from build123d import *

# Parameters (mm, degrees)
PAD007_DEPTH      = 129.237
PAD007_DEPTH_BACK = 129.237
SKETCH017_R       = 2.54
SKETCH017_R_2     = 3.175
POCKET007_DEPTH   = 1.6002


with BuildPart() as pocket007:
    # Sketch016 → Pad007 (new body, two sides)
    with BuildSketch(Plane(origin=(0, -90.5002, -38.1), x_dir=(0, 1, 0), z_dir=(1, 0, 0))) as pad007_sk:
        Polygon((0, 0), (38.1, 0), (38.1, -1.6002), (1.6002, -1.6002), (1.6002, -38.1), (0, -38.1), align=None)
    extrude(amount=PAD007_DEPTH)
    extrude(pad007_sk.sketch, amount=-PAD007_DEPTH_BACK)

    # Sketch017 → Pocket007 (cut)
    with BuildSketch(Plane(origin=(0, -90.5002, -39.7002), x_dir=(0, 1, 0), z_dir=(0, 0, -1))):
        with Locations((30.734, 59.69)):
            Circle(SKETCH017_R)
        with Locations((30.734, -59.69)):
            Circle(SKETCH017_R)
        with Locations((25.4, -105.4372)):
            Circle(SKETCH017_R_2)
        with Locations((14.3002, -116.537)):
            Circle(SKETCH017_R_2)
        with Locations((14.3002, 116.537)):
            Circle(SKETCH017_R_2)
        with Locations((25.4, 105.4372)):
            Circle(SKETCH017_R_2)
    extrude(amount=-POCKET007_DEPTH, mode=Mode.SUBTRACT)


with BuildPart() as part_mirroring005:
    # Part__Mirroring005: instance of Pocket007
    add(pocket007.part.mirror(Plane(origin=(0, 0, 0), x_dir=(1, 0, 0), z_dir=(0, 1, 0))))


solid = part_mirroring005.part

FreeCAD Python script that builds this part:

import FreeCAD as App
import Part
import Sketcher
from FreeCAD import Vector
Q = App.Units.Quantity

doc = App.newDocument("Part")
body = doc.addObject("PartDesign::Body", "Body")

# Sketch on YZ plane
sketch1 = doc.addObject("Sketcher::SketchObject", "Sketch")
body.addObject(sketch1)
sketch1.AttachmentSupport = (doc.YZ_Plane, [""])
sketch1.MapMode = "FlatFace"
sketch1.addGeometry(Part.LineSegment(Vector(-52.4002, -38.1, 0), Vector(-90.5002, -38.1, 0)), False)
sketch1.addGeometry(Part.LineSegment(Vector(-90.5002, -38.1, 0), Vector(-90.5002, -76.2, 0)), False)
sketch1.addGeometry(Part.LineSegment(Vector(-90.5002, -76.2, 0), Vector(-88.9, -76.2, 0)), False)
sketch1.addGeometry(Part.LineSegment(Vector(-88.9, -76.2, 0), Vector(-88.9, -39.7002, 0)), False)
sketch1.addGeometry(Part.LineSegment(Vector(-88.9, -39.7002, 0), Vector(-52.4002, -39.7002, 0)), False)
sketch1.addGeometry(Part.LineSegment(Vector(-52.4002, -39.7002, 0), Vector(-52.4002, -38.1, 0)), False)
sketch1.addConstraint(Sketcher.Constraint("Coincident", 0, 2, 1, 1))
sketch1.addConstraint(Sketcher.Constraint("Coincident", 1, 2, 2, 1))
sketch1.addConstraint(Sketcher.Constraint("Coincident", 2, 2, 3, 1))
sketch1.addConstraint(Sketcher.Constraint("Coincident", 3, 2, 4, 1))
sketch1.addConstraint(Sketcher.Constraint("Coincident", 4, 2, 5, 1))
sketch1.addConstraint(Sketcher.Constraint("Coincident", 5, 2, 0, 1))
sketch1.addConstraint(Sketcher.Constraint("Horizontal", 0))
sketch1.addConstraint(Sketcher.Constraint("Vertical", 1))
sketch1.addConstraint(Sketcher.Constraint("Horizontal", 2))
sketch1.addConstraint(Sketcher.Constraint("Vertical", 3))
sketch1.addConstraint(Sketcher.Constraint("Horizontal", 4))
sketch1.addConstraint(Sketcher.Constraint("Vertical", 5))
sketch1.addConstraint(Sketcher.Constraint("Equal", 0, 1))
sketch1.addConstraint(Sketcher.Constraint("Equal", 4, 3))
sketch1.addConstraint(Sketcher.Constraint("DistanceX", 0, 2, 0, 1, Q("1.5 in")))
sketch1.addConstraint(Sketcher.Constraint("DistanceY", 1, 2, -1, 1, Q("3 in")))
sketch1.addConstraint(Sketcher.Constraint("DistanceX", 2, 2, -1, 1, Q("3.5 in")))
sketch1.addConstraint(Sketcher.Constraint("DistanceX", 2, 1, 2, 2, Q("0.063 in")))
pad1 = doc.addObject("PartDesign::Pad", "Pad")
body.addObject(pad1)
pad1.Profile = sketch1
pad1.Type = "TwoLengths"
pad1.Length = 129.237
pad1.Length2 = 129.237

# Sketch on XY plane
sketch2 = doc.addObject("Sketcher::SketchObject", "Sketch001")
body.addObject(sketch2)
sketch2.AttachmentSupport = (doc.XY_Plane, [""])
sketch2.MapMode = "FlatFace"
sketch2.AttachmentOffset = App.Placement(Vector(0, 0, -1.563 * 25.4), App.Rotation())
sketch2.addGeometry(Part.Circle(Vector(59.69, -59.7662, 0), Vector(0, 0, 1), 2.54), False)
sketch2.addGeometry(Part.Circle(Vector(-59.69, -59.7662, 0), Vector(0, 0, 1), 2.54), False)
sketch2.addGeometry(Part.Circle(Vector(-105.4372, -65.1002, 0), Vector(0, 0, 1), 3.175), False)
sketch2.addGeometry(Part.Circle(Vector(-116.537, -76.2, 0), Vector(0, 0, 1), 3.175), False)
sketch2.addGeometry(Part.Circle(Vector(116.537, -76.2, 0), Vector(0, 0, 1), 3.175), False)
sketch2.addGeometry(Part.Circle(Vector(105.4372, -65.1002, 0), Vector(0, 0, 1), 3.175), False)
sketch2.addConstraint(Sketcher.Constraint("Equal", 0, 1))
sketch2.addConstraint(Sketcher.Constraint("Equal", 2, 3))
sketch2.addConstraint(Sketcher.Constraint("Equal", 3, 4))
sketch2.addConstraint(Sketcher.Constraint("Equal", 4, 5))
sketch2.addConstraint(Sketcher.Constraint("Symmetric", 0, 3, 1, 3, -2))
sketch2.addConstraint(Sketcher.Constraint("Symmetric", 3, 3, 4, 3, -2))
sketch2.addConstraint(Sketcher.Constraint("Symmetric", 2, 3, 5, 3, -2))
sketch2.addConstraint(Sketcher.Constraint("Diameter", 0, Q("0.2 in")))
sketch2.addConstraint(Sketcher.Constraint("Diameter", 2, Q("0.25 in")))
sketch2.addConstraint(Sketcher.Constraint("DistanceY", 3, 3, -1, 1, Q("3 in")))
sketch2.addConstraint(Sketcher.Constraint("DistanceX", 1, 3, 0, 3, Q("4.7 in")))
sketch2.addConstraint(Sketcher.Constraint("DistanceY", 2, 3, 1, 3, Q("0.21 in")))
sketch2.addConstraint(Sketcher.Constraint("DistanceY", 0, 3, -1, 1, Q("2.353 in")))
sketch2.addConstraint(Sketcher.Constraint("DistanceX", 3, 3, 2, 3, Q("0.437 in")))
sketch2.addConstraint(Sketcher.Constraint("DistanceX", 2, 3, -1, 1, Q("105.4372 mm")))
pocket1 = doc.addObject("PartDesign::Pocket", "Pocket")
body.addObject(pocket1)
pocket1.Profile = sketch2
pocket1.Length = Q("0.063 in")
pocket1.Reversed = True
body2 = doc.addObject("PartDesign::Body", "Body001")
doc.recompute()

mirroring = doc.addObject("Part::Mirroring", "Mirroring")
mirroring.Source = body
mirroring.Base = Vector(0, 0, 0)
mirroring.Normal = Vector(0, 1, 0)
body2.BaseFeature = mirroring
doc.recompute()
body.Visibility = False
mirroring.Visibility = False

doc.recompute()
